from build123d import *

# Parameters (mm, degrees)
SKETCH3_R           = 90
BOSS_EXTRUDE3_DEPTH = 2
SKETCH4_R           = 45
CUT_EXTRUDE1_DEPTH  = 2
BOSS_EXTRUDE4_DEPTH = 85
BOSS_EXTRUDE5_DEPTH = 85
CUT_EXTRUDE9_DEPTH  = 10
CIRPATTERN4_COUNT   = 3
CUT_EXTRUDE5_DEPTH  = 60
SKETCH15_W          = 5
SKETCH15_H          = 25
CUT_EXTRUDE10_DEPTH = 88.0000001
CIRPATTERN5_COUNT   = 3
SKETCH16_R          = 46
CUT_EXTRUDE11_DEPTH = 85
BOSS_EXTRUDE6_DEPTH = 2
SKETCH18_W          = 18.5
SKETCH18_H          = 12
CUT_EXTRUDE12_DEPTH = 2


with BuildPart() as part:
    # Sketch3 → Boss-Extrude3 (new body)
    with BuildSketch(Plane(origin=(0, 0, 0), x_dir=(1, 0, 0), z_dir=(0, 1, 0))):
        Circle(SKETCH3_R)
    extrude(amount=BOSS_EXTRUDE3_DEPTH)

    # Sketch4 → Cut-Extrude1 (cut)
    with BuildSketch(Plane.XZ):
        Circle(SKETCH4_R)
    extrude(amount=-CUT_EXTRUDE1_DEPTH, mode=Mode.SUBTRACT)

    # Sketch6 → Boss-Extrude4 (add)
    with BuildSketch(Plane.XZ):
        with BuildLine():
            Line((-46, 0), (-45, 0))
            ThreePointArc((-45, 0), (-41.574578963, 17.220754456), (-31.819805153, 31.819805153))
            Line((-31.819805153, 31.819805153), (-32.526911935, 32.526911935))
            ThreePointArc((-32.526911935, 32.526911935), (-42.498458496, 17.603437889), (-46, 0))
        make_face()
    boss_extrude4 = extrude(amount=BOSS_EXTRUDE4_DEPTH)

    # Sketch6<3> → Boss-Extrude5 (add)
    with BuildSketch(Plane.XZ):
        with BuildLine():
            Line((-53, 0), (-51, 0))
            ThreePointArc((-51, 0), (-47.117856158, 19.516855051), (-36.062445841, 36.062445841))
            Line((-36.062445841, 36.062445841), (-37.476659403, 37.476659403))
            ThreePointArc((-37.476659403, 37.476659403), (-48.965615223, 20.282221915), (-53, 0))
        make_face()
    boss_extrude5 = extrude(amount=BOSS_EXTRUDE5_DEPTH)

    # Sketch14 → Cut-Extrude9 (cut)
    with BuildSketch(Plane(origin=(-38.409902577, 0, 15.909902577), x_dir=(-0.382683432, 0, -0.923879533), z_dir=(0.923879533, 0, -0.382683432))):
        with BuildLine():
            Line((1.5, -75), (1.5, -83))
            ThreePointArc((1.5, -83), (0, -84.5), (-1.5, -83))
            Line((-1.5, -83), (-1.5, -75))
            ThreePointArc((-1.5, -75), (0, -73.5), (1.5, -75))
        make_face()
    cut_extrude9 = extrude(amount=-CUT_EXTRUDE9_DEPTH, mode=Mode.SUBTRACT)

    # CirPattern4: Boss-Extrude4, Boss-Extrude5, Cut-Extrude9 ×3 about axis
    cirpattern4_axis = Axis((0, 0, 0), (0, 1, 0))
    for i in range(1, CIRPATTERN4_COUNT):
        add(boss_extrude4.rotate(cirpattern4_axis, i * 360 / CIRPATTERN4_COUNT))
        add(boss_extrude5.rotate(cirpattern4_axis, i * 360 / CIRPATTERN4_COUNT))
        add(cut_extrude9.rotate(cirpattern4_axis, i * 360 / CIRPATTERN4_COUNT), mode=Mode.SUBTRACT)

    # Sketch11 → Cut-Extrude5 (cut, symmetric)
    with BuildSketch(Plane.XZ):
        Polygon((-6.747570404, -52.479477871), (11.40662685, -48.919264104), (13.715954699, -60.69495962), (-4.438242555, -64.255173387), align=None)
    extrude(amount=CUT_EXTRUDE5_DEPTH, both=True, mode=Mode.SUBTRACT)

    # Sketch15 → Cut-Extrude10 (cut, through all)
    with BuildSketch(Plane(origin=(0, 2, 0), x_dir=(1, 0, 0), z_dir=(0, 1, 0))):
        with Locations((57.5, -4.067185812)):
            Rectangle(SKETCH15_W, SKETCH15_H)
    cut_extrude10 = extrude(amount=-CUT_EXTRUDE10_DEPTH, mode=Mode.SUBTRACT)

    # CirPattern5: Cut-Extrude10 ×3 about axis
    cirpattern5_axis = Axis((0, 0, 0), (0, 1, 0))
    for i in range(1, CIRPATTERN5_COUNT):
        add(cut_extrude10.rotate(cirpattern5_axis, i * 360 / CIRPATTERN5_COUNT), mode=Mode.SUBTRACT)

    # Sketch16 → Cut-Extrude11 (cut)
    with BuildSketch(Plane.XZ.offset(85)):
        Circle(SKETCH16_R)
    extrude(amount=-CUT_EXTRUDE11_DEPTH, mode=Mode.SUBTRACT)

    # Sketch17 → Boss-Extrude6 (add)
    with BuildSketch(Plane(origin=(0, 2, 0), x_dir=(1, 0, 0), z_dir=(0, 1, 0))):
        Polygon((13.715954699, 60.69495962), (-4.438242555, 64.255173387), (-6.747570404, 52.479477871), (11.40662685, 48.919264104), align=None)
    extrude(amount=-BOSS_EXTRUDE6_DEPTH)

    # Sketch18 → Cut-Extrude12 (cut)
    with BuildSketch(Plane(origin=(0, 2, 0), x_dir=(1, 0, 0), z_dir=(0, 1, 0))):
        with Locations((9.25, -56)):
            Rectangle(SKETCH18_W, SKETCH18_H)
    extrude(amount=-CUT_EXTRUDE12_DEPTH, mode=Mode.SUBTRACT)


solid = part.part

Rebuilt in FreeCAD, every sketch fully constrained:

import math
import FreeCAD as App
import Part
import Sketcher

V = App.Vector
Q = App.Units.Quantity


def add_polygon(sketch, points):
    """Adds a closed chain of lines whose ends are joined by coincident constraints."""
    first, n = sketch.GeometryCount, len(points)
    for a, b in zip(points, points[1:] + points[:1]):
        sketch.addGeometry(Part.LineSegment(App.Vector(*a, 0), App.Vector(*b, 0)), False)
    for i in range(n):
        sketch.addConstraint(Sketcher.Constraint("Coincident", first + i, 2, first + (i + 1) % n, 1))

doc = App.newDocument("Part")
body = doc.addObject("PartDesign::Body", "Body")

# Sketch on XZ plane
sketch1 = body.newObject("Sketcher::SketchObject", "Sketch")
sketch1.AttachmentSupport = (doc.getObject("XZ_Plane"), [""])
sketch1.MapMode = "FlatFace"
sketch1.addGeometry(Part.Circle(V(0, 0, 0), V(0, 0, 1), 90), False)
sketch1.addConstraint([
    Sketcher.Constraint("Coincident", 0, 3, -1, 1),
    Sketcher.Constraint("Diameter", 0, Q("180 mm")),
])
pad1 = body.newObject("PartDesign::Pad", "Pad")
pad1.Profile = sketch1
pad1.Length = 2
pad1.Reversed = True

# Sketch on XZ plane
sketch2 = body.newObject("Sketcher::SketchObject", "Sketch001")
sketch2.AttachmentSupport = (doc.getObject("XZ_Plane"), [""])
sketch2.MapMode = "FlatFace"
sketch2.addGeometry(Part.Circle(V(0, 0, 0), V(0, 0, 1), 45), False)
sketch2.addConstraint([
    Sketcher.Constraint("Coincident", 0, 3, -1, 1),
    Sketcher.Constraint("Diameter", 0, Q("90 mm")),
])
pocket1 = body.newObject("PartDesign::Pocket", "Pocket")
pocket1.Profile = sketch2
pocket1.Length = 2

# Sketch on XZ plane
sketch3 = body.newObject("Sketcher::SketchObject", "Sketch002")
sketch3.AttachmentSupport = (doc.getObject("XZ_Plane"), [""])
sketch3.MapMode = "FlatFace"
sketch3.addGeometry([
    Part.LineSegment(V(-46, 0, 0), V(-45, 0, 0)),
    Part.ArcOfCircle(Part.Circle(V(0, 0, 0), V(0, 0, 1), 45), math.radians(135), math.radians(180)),
    Part.LineSegment(V(-31.8, 31.8, 0), V(-32.5, 32.5, 0)),
    Part.ArcOfCircle(Part.Circle(V(0, 0, 0), V(0, 0, 1), 46), math.radians(135), math.radians(180)),
], False)
sketch3.addConstraint([
    Sketcher.Constraint("Coincident", 0, 2, 1, 2),
    Sketcher.Constraint("Coincident", 1, 1, 2, 1),
    Sketcher.Constraint("Coincident", 2, 2, 3, 1),
    Sketcher.Constraint("Coincident", 3, 2, 0, 1),
    Sketcher.Constraint("Horizontal", 0),
    Sketcher.Constraint("Coincident", 1, 3, -1, 1),
    Sketcher.Constraint("Coincident", 3, 3, -1, 1),
    Sketcher.Constraint("PointOnObject", 0, 2, -1),
    Sketcher.Constraint("Radius", 1, Q("45 mm")),
    Sketcher.Constraint("Radius", 3, Q("46 mm")),
    Sketcher.Constraint("Angle", 2, Q("135 deg")),
    Sketcher.Constraint("DistanceX", 2, 2, -1, 1, Q("32.526912 mm")),
])
pad2 = body.newObject("PartDesign::Pad", "Pad001")
pad2.Profile = sketch3
pad2.Length = 85

# Sketch on XZ plane
sketch4 = body.newObject("Sketcher::SketchObject", "Sketch003")
sketch4.AttachmentSupport = (doc.getObject("XZ_Plane"), [""])
sketch4.MapMode = "FlatFace"
sketch4.addGeometry([
    Part.LineSegment(V(-53, 0, 0), V(-51, 0, 0)),
    Part.ArcOfCircle(Part.Circle(V(0, 0, 0), V(0, 0, 1), 51), math.radians(135), math.radians(180)),
    Part.LineSegment(V(-36.1, 36.1, 0), V(-37.5, 37.5, 0)),
    Part.ArcOfCircle(Part.Circle(V(0, 0, 0), V(0, 0, 1), 53), math.radians(135), math.radians(180)),
], False)
sketch4.addConstraint([
    Sketcher.Constraint("Coincident", 0, 2, 1, 2),
    Sketcher.Constraint("Coincident", 1, 1, 2, 1),
    Sketcher.Constraint("Coincident", 2, 2, 3, 1),
    Sketcher.Constraint("Coincident", 3, 2, 0, 1),
    Sketcher.Constraint("Horizontal", 0),
    Sketcher.Constraint("Coincident", 1, 3, -1, 1),
    Sketcher.Constraint("Coincident", 3, 3, -1, 1),
    Sketcher.Constraint("PointOnObject", 0, 2, -1),
    Sketcher.Constraint("Radius", 1, Q("51 mm")),
    Sketcher.Constraint("Radius", 3, Q("53 mm")),
    Sketcher.Constraint("Angle", 2, Q("135 deg")),
    Sketcher.Constraint("DistanceX", 2, 2, -1, 1, Q("37.476659 mm")),
])
pad3 = body.newObject("PartDesign::Pad", "Pad002")
pad3.Profile = sketch4
pad3.Length = 85

# Sketch on an angled plane
sketch5 = body.newObject("Sketcher::SketchObject", "Sketch004")
sketch5.Placement = App.Placement(V(-38.409903, 0, 15.909903), App.Rotation(V(-0.382683432, 0, -0.923879533), V(0, 1.000000001, 0), V(0.923879533, 0, -0.382683432), "ZXY"))
sketch5.addGeometry([
    Part.LineSegment(V(1.5, -83, 0), V(1.5, -75, 0)),
    Part.ArcOfCircle(Part.Circle(V(0, -75, 0), V(0, 0, 1), 1.5), math.radians(0), math.radians(180)),
    Part.LineSegment(V(-1.5, -75, 0), V(-1.5, -83, 0)),
    Part.ArcOfCircle(Part.Circle(V(0, -83, 0), V(0, 0, 1), 1.5), math.radians(180), math.radians(360)),
], False)
sketch5.addConstraint([
    Sketcher.Constraint("Tangent", 0, 2, 1, 1),
    Sketcher.Constraint("Tangent", 1, 2, 2, 1),
    Sketcher.Constraint("Tangent", 2, 2, 3, 1),
    Sketcher.Constraint("Tangent", 3, 2, 0, 1),
    Sketcher.Constraint("Vertical", 0),
    Sketcher.Constraint("Vertical", 2),
    Sketcher.Constraint("PointOnObject", 1, 3, -2),
    Sketcher.Constraint("Radius", 1, Q("1.5 mm")),
    Sketcher.Constraint("DistanceY", 0, 1, 0, 2, Q("8 mm")),
    Sketcher.Constraint("DistanceY", 1, 3, -1, 1, Q("75 mm")),
])
pocket2 = body.newObject("PartDesign::Pocket", "Pocket001")
pocket2.Profile = sketch5
pocket2.Length = 10
doc.recompute()

polarpattern = body.newObject("PartDesign::PolarPattern", "PolarPattern")
polarpattern.Originals = [pad2, pad3, pocket2]
polarpattern.Axis = (doc.getObject("Y_Axis"), [""])
polarpattern.Angle = 360
polarpattern.Occurrences = 3
body.Tip = polarpattern

# Sketch on XZ plane
sketch6 = body.newObject("Sketcher::SketchObject", "Sketch005")
sketch6.AttachmentSupport = (doc.getObject("XZ_Plane"), [""])
sketch6.MapMode = "FlatFace"
add_polygon(sketch6, [(11, -49), (-7, -52), (-4, -64), (14, -61)])  # lines 0-3
sketch6.addConstraint([
    Sketcher.Constraint("Perpendicular", 0, 1),
    Sketcher.Constraint("Perpendicular", 1, 2),
    Sketcher.Constraint("Perpendicular", 2, 3),
    Sketcher.Constraint("Distance", 1, Q("12 mm")),
    Sketcher.Constraint("Distance", 0, Q("18.5 mm")),
    Sketcher.Constraint("DistanceX", 0, 2, -1, 1, Q("6.74757 mm")),
    Sketcher.Constraint("DistanceY", 2, 2, -1, 1, Q("60.69496 mm")),
    Sketcher.Constraint("DistanceY", 2, 2, 0, 2, Q("8.215482 mm")),
])
pocket3 = body.newObject("PartDesign::Pocket", "Pocket002")
pocket3.Profile = sketch6
pocket3.Length = 120
pocket3.Midplane = True

# Sketch on XZ plane
sketch7 = body.newObject("Sketcher::SketchObject", "Sketch006")
sketch7.AttachmentSupport = (doc.getObject("XZ_Plane"), [""])
sketch7.MapMode = "FlatFace"
sketch7.AttachmentOffset = App.Placement(V(0, 0, -2), App.Rotation())
add_polygon(sketch7, [(55, -8), (55, 17), (60, 17), (60, -8)])  # lines 0-3
sketch7.addConstraint([
    Sketcher.Constraint("Vertical", 0),
    Sketcher.Constraint("Horizontal", 1),
    Sketcher.Constraint("Vertical", 2),
    Sketcher.Constraint("Horizontal", 3),
    Sketcher.Constraint("DistanceX", 1, 1, 1, 2, Q("5 mm")),
    Sketcher.Constraint("DistanceY", 0, 1, 0, 2, Q("25 mm")),
    Sketcher.Constraint("DistanceX", -1, 1, 0, 2, Q("55 mm")),
    Sketcher.Constraint("DistanceY", -1, 1, 0, 2, Q("16.567186 mm")),
])
pocket4 = body.newObject("PartDesign::Pocket", "Pocket003")
pocket4.Profile = sketch7
pocket4.Type = "ThroughAll"
pocket4.Reversed = True
doc.recompute()

polarpattern2 = body.newObject("PartDesign::PolarPattern", "PolarPattern001")
polarpattern2.Originals = [pocket4]
polarpattern2.Axis = (doc.getObject("Y_Axis"), [""])
polarpattern2.Angle = 360
polarpattern2.Occurrences = 3
body.Tip = polarpattern2

# Sketch on XZ plane
sketch8 = body.newObject("Sketcher::SketchObject", "Sketch007")
sketch8.AttachmentSupport = (doc.getObject("XZ_Plane"), [""])
sketch8.MapMode = "FlatFace"
sketch8.AttachmentOffset = App.Placement(V(0, 0, 85), App.Rotation())
sketch8.addGeometry(Part.Circle(V(0, 0, 0), V(0, 0, 1), 46), False)
sketch8.addConstraint([
    Sketcher.Constraint("Coincident", 0, 3, -1, 1),
    Sketcher.Constraint("Diameter", 0, Q("92 mm")),
])
pocket5 = body.newObject("PartDesign::Pocket", "Pocket004")
pocket5.Profile = sketch8
pocket5.Length = 85

# Sketch on XZ plane
sketch9 = body.newObject("Sketcher::SketchObject", "Sketch008")
sketch9.AttachmentSupport = (doc.getObject("XZ_Plane"), [""])
sketch9.MapMode = "FlatFace"
sketch9.AttachmentOffset = App.Placement(V(0, 0, -2), App.Rotation())
add_polygon(sketch9, [(14, -61), (-4, -64), (-7, -52), (11, -49)])  # lines 0-3
sketch9.addConstraint([
    Sketcher.Constraint("Perpendicular", 0, 1),
    Sketcher.Constraint("Perpendicular", 1, 2),
    Sketcher.Constraint("Perpendicular", 2, 3),
    Sketcher.Constraint("Distance", 1, Q("12 mm")),
    Sketcher.Constraint("Distance", 0, Q("18.5 mm")),
    Sketcher.Constraint("DistanceX", 1, 2, -1, 1, Q("6.74757 mm")),
    Sketcher.Constraint("DistanceY", 3, 2, -1, 1, Q("60.69496 mm")),
    Sketcher.Constraint("DistanceX", 0, 2, 2, 2, Q("15.844869 mm")),
])
pad4 = body.newObject("PartDesign::Pad", "Pad003")
pad4.Profile = sketch9
pad4.Length = 2

# Sketch on XZ plane
sketch10 = body.newObject("Sketcher::SketchObject", "Sketch009")
sketch10.AttachmentSupport = (doc.getObject("XZ_Plane"), [""])
sketch10.MapMode = "FlatFace"
sketch10.AttachmentOffset = App.Placement(V(0, 0, -2), App.Rotation())
add_polygon(sketch10, [(0, 50), (0, 62), (18, 62), (18, 50)])  # lines 0-3
sketch10.addConstraint([
    Sketcher.Constraint("Vertical", 0),
    Sketcher.Constraint("Horizontal", 1),
    Sketcher.Constraint("Vertical", 2),
    Sketcher.Constraint("Horizontal", 3),
    Sketcher.Constraint("PointOnObject", 0, 2, -2),
    Sketcher.Constraint("DistanceY", 0, 1, 0, 2, Q("12 mm")),
    Sketcher.Constraint("DistanceX", 1, 1, 1, 2, Q("18.5 mm")),
    Sketcher.Constraint("DistanceY", -1, 1, 0, 2, Q("62 mm")),
])
pocket6 = body.newObject("PartDesign::Pocket", "Pocket005")
pocket6.Profile = sketch10
pocket6.Length = 2
pocket6.Reversed = True

doc.recompute()
